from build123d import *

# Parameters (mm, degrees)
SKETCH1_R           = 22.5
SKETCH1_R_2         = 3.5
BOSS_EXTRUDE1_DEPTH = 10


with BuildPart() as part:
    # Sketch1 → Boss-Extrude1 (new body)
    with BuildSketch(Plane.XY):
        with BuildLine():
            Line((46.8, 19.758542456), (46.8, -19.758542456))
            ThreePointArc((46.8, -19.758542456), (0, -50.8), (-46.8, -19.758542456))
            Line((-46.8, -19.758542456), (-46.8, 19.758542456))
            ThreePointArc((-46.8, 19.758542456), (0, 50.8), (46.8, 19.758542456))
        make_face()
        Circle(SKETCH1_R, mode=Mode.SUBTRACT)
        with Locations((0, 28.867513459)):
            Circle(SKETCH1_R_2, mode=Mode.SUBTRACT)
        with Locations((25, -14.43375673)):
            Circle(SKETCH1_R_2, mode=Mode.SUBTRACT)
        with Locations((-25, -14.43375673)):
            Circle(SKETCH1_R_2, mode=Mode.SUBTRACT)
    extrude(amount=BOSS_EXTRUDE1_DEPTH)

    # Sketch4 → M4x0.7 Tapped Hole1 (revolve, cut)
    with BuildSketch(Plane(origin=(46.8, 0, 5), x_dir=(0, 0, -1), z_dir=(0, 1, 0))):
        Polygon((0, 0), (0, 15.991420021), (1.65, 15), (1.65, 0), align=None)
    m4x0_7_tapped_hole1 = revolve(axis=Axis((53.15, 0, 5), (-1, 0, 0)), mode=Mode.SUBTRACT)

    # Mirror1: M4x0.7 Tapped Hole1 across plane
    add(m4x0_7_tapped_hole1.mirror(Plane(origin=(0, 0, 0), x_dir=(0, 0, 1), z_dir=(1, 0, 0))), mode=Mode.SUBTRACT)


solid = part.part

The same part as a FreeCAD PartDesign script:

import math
import FreeCAD as App
import Part
import Sketcher
from FreeCAD import Vector
Q = App.Units.Quantity


def add_polygon(sketch, points):
    """Adds a closed chain of lines whose ends are joined by coincident constraints."""
    first, n = sketch.GeometryCount, len(points)
    for a, b in zip(points, points[1:] + points[:1]):
        sketch.addGeometry(Part.LineSegment(App.Vector(*a, 0), App.Vector(*b, 0)), False)
    for i in range(n):
        sketch.addConstraint(Sketcher.Constraint("Coincident", first + i, 2, first + (i + 1) % n, 1))

doc = App.newDocument("Part")
params = doc.addObject("Spreadsheet::Sheet", "Params")
for row, (alias, value) in enumerate([
    ("sketch1_diameter", "7 mm"),
    ("sketch1_diameter2", "45 mm"),
    ("sketch1_radius", "50.8 mm"),
    ("pad1_length", "10 mm"),
    ("sketch2_width", "15 mm"),
    ("sketch2_height", "1.65 mm"),
    ("groove_angle", "360 deg"),
], start=1):
    params.set(f"A{row}", alias)
    params.set(f"B{row}", "=" + value)
    params.setAlias(f"B{row}", alias)

body = doc.addObject("PartDesign::Body", "Body")

# Sketch on XY plane
sketch1 = body.newObject("Sketcher::SketchObject", "Sketch")
sketch1.AttachmentSupport = (doc.getObject("XY_Plane"), [""])
sketch1.MapMode = "FlatFace"
sketch1.addGeometry(Part.LineSegment(Vector(46.8, -19.8, 0), Vector(46.8, 19.8, 0)), False)
sketch1.addGeometry(Part.ArcOfCircle(Part.Circle(Vector(0, 0, 0), Vector(0, 0, 1), 50.8), math.radians(23), math.radians(157)), False)
sketch1.addGeometry(Part.LineSegment(Vector(-46.8, 19.8, 0), Vector(-46.8, -19.8, 0)), False)
sketch1.addGeometry(Part.ArcOfCircle(Part.Circle(Vector(0, 0, 0), Vector(0, 0, 1), 50.8), math.radians(-157), math.radians(-23)), False)
sketch1.addGeometry(Part.Circle(Vector(25, -14.4, 0), Vector(0, 0, 1), 3.5), False)
sketch1.addGeometry(Part.Circle(Vector(-25, -14.4, 0), Vector(0, 0, 1), 3.5), False)
sketch1.addGeometry(Part.Circle(Vector(0, 0, 0), Vector(0, 0, 1), 22.5), False)
sketch1.addGeometry(Part.Circle(Vector(0, 28.9, 0), Vector(0, 0, 1), 3.5), False)
sketch1.addConstraint(Sketcher.Constraint("Coincident", 0, 2, 1, 1))
sketch1.addConstraint(Sketcher.Constraint("Coincident", 1, 2, 2, 1))
sketch1.addConstraint(Sketcher.Constraint("Coincident", 2, 2, 3, 1))
sketch1.addConstraint(Sketcher.Constraint("Coincident", 3, 2, 0, 1))
sketch1.addConstraint(Sketcher.Constraint("Vertical", 0))
sketch1.addConstraint(Sketcher.Constraint("Vertical", 2))
sketch1.addConstraint(Sketcher.Constraint("Coincident", 1, 3, -1, 1))
sketch1.addConstraint(Sketcher.Constraint("Coincident", 3, 3, -1, 1))
sketch1.addConstraint(Sketcher.Constraint("Coincident", 6, 3, -1, 1))
sketch1.addConstraint(Sketcher.Constraint("Equal", 1, 3))
sketch1.addConstraint(Sketcher.Constraint("Equal", 4, 5))
sketch1.addConstraint(Sketcher.Constraint("Equal", 5, 7))
sketch1.addConstraint(Sketcher.Constraint("Symmetric", 4, 3, 5, 3, -2))
sketch1.addConstraint(Sketcher.Constraint("PointOnObject", 7, 3, -2))
sketch1.addConstraint(Sketcher.Constraint("Horizontal", 0, 2, 1, 2))
sketch1.addConstraint(Sketcher.Constraint("Diameter", 4, 7.0))
sketch1.addConstraint(Sketcher.Constraint("Diameter", 6, 45.0))
sketch1.addConstraint(Sketcher.Constraint("Radius", 1, 50.8))
sketch1.addConstraint(Sketcher.Constraint("DistanceX", -1, 1, 4, 3, 25.0))
sketch1.addConstraint(Sketcher.Constraint("DistanceX", -1, 1, 0, 2, 46.8))
sketch1.addConstraint(Sketcher.Constraint("DistanceY", 4, 3, 0, 2, 34.192299))
sketch1.addConstraint(Sketcher.Constraint("DistanceY", 4, 3, 7, 3, 43.30127))
sketch1.setExpression("Constraints[15]", "Params.sketch1_diameter")
sketch1.setExpression("Constraints[16]", "Params.sketch1_diameter2")
sketch1.setExpression("Constraints[17]", "Params.sketch1_radius")
pad1 = body.newObject("PartDesign::Pad", "Pad")
pad1.Profile = sketch1
pad1.setExpression("Length", "Params.pad1_length")

# Sketch on XZ plane
sketch2 = body.newObject("Sketcher::SketchObject", "Sketch001")
sketch2.AttachmentSupport = (doc.getObject("XZ_Plane"), [""])
sketch2.MapMode = "FlatFace"
add_polygon(sketch2, [(30.8, 5), (46.8, 5), (46.8, 3.4), (31.8, 3.4)])  # lines 0-3
sketch2.addGeometry(Part.LineSegment(Vector(46.8, 5, 0), Vector(30.8, 5, 0)), True)  # axis
sketch2.addConstraint(Sketcher.Constraint("Horizontal", 0))
sketch2.addConstraint(Sketcher.Constraint("Vertical", 1))
sketch2.addConstraint(Sketcher.Constraint("Horizontal", 2))
sketch2.addConstraint(Sketcher.Constraint("Horizontal", 4))
sketch2.addConstraint(Sketcher.Constraint("Coincident", 4, 1, 0, 2))
sketch2.addConstraint(Sketcher.Constraint("Equal", 0, 4))
sketch2.addConstraint(Sketcher.Constraint("DistanceX", 2, 2, 2, 1, 15.0))
sketch2.addConstraint(Sketcher.Constraint("Angle", 3, Q("121 deg")))
sketch2.addConstraint(Sketcher.Constraint("DistanceY", -1, 1, 0, 2, 5.0))
sketch2.addConstraint(Sketcher.Constraint("DistanceY", 1, 2, 1, 1, 1.65))
sketch2.addConstraint(Sketcher.Constraint("DistanceX", -1, 1, 0, 2, 46.8))
sketch2.setExpression("Constraints[10]", "Params.sketch2_width")
sketch2.setExpression("Constraints[13]", "Params.sketch2_height")
groove = body.newObject("PartDesign::Groove", "Groove")
groove.Profile = sketch2
groove.ReferenceAxis = (sketch2, ["Axis0"])
groove.setExpression("Angle", "Params.groove_angle")
doc.recompute()

mirrored = body.newObject("PartDesign::Mirrored", "Mirrored")
mirrored.Originals = [groove]
mirrored.MirrorPlane = (doc.getObject("YZ_Plane"), [""])
body.Tip = mirrored

doc.recompute()
